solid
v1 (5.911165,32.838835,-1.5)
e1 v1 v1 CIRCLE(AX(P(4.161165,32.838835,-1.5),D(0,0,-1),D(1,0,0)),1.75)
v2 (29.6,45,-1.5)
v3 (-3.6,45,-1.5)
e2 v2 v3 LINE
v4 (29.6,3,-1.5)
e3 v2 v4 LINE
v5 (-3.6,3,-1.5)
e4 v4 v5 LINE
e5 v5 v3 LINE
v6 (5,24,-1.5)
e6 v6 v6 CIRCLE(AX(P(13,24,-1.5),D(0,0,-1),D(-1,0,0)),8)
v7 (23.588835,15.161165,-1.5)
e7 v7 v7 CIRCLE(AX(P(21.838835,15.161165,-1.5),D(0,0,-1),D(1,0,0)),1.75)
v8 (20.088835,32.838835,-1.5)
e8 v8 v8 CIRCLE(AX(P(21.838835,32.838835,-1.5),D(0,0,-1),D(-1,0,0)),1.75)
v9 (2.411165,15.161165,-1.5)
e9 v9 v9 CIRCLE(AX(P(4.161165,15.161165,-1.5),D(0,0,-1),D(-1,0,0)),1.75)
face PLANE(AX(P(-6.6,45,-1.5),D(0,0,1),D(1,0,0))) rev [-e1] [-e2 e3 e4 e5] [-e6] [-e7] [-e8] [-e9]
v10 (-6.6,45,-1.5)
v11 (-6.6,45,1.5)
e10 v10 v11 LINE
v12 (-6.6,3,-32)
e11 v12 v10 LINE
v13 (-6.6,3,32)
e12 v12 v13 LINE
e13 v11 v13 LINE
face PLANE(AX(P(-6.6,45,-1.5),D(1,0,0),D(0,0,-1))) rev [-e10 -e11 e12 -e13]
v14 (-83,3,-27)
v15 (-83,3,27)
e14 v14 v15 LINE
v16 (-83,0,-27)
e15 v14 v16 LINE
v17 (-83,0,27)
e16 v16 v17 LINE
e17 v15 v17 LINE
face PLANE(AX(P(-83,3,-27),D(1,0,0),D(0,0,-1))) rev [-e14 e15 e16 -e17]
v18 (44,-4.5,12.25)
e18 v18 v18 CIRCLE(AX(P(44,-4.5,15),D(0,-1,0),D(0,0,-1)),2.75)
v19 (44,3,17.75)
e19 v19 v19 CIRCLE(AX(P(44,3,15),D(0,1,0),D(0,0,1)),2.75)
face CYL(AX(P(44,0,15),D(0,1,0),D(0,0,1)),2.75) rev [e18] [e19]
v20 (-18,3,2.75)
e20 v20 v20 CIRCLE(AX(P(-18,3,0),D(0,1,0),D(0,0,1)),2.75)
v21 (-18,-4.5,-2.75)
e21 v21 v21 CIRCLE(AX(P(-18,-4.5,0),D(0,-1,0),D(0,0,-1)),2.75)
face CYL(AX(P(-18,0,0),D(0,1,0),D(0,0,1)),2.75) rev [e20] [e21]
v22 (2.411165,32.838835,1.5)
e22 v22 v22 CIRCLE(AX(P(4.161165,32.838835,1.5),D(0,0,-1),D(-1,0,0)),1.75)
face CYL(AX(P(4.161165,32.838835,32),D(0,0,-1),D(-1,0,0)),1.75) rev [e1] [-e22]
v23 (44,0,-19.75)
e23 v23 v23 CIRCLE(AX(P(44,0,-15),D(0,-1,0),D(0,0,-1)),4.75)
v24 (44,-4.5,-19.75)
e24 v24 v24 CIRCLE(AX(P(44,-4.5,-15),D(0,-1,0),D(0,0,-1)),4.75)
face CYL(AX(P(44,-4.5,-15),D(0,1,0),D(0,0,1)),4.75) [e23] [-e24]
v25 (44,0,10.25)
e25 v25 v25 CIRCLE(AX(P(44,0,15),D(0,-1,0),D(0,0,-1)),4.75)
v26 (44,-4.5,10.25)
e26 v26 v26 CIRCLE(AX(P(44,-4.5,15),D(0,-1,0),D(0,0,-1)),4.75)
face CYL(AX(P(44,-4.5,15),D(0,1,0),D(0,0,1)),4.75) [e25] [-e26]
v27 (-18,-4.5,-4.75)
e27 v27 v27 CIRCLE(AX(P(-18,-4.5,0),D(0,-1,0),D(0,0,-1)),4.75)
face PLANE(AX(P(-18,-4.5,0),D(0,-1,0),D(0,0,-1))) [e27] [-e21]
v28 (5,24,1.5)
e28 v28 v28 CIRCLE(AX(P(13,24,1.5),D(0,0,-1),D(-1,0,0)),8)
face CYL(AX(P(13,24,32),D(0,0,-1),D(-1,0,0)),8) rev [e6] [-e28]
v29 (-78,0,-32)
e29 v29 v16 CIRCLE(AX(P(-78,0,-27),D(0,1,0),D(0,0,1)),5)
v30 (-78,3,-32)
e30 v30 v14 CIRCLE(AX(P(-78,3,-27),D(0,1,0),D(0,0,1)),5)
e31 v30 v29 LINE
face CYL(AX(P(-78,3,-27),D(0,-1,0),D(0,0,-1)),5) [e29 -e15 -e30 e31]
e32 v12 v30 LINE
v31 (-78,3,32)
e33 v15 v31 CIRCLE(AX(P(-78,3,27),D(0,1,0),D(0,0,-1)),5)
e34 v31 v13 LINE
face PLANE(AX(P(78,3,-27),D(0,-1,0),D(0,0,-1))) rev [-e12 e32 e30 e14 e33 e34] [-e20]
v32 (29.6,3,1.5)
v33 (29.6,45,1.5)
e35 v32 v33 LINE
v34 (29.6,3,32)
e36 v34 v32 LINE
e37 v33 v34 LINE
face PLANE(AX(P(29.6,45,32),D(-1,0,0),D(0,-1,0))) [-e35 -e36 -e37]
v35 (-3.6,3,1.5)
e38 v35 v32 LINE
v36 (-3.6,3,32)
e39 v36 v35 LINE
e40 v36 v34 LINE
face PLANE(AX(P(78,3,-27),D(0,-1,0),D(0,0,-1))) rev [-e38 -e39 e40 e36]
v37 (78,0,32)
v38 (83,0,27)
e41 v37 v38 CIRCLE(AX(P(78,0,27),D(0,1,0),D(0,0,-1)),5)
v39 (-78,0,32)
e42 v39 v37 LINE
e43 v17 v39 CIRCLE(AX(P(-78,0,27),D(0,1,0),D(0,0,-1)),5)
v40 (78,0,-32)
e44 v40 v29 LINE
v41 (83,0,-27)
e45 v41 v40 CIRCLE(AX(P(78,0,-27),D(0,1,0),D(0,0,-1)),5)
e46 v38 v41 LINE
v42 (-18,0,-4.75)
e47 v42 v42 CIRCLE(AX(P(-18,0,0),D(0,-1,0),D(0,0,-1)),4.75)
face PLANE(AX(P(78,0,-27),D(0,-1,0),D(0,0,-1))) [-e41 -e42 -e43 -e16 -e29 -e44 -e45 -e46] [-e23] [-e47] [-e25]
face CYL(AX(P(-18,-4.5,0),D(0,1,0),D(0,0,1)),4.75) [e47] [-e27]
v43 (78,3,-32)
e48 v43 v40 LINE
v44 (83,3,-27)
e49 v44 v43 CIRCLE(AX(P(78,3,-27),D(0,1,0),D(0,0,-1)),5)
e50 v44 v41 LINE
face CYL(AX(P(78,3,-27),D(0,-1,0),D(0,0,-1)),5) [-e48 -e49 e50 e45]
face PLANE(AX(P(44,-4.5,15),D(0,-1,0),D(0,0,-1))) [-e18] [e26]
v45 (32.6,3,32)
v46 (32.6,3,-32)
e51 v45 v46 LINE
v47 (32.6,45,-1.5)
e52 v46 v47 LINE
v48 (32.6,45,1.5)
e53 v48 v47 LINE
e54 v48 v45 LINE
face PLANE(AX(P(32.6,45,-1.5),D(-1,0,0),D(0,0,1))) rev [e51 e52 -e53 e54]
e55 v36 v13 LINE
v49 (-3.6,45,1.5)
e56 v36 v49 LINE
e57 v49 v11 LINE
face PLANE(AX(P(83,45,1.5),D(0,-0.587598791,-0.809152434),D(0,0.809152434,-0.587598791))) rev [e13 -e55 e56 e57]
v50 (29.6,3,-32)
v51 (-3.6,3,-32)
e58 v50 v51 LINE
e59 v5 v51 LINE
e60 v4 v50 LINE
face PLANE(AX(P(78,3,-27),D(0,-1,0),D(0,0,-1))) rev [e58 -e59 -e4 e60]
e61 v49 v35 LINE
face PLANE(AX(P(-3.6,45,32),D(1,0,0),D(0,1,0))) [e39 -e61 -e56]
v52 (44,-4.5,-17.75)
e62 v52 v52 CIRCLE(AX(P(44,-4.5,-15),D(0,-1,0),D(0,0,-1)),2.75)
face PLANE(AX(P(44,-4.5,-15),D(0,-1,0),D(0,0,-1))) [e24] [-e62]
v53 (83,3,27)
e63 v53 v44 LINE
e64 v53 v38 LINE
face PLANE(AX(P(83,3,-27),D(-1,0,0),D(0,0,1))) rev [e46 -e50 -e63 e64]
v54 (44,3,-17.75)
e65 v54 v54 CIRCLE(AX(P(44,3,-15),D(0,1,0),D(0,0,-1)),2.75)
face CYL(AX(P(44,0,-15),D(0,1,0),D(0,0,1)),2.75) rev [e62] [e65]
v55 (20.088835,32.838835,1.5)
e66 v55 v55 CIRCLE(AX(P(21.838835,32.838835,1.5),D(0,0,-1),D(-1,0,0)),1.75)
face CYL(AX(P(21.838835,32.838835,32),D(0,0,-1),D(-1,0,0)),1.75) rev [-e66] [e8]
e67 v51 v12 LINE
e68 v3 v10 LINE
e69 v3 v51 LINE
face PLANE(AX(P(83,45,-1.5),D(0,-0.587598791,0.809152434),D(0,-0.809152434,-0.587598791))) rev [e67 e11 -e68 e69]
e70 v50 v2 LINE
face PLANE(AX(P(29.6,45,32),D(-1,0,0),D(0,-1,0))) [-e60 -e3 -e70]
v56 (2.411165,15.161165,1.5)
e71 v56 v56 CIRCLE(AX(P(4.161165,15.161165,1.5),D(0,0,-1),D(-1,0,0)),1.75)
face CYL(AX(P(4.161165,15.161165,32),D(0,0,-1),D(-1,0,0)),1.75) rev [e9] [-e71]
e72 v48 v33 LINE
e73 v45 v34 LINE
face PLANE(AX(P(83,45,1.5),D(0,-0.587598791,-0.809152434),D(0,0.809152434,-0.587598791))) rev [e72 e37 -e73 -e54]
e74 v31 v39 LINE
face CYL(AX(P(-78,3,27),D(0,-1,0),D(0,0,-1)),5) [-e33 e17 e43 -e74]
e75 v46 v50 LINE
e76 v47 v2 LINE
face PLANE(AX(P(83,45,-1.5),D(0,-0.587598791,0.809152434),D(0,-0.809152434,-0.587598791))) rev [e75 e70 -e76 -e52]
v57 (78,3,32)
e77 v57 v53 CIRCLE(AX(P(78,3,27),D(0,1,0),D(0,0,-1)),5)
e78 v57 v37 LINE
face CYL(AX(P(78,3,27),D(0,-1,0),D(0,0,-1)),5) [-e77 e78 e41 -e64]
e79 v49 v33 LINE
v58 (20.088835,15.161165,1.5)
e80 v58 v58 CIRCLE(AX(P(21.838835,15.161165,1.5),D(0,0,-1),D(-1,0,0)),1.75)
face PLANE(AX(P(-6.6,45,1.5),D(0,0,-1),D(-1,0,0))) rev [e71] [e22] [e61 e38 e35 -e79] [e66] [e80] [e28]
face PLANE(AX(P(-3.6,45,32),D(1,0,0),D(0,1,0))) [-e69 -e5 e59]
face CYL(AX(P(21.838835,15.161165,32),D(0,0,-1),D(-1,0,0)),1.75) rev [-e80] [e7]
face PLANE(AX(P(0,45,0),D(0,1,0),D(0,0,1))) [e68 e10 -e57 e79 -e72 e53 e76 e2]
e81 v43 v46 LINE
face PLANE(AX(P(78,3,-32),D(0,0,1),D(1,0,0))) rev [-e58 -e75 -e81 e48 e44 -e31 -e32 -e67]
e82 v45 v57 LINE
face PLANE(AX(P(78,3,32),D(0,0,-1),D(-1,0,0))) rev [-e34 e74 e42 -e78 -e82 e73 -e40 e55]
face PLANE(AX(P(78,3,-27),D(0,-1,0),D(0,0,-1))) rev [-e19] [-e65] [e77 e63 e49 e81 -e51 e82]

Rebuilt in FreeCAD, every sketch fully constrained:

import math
import FreeCAD as App
import Part
import Sketcher

doc = App.newDocument("Part")
body = doc.addObject("PartDesign::Body", "Body")

# Sketch on XZ plane
sketch1 = body.newObject("Sketcher::SketchObject", "Sketch")
sketch1.AttachmentSupport = (doc.getObject("XZ_Plane"), [""])
sketch1.MapMode = "FlatFace"
sketch1.addGeometry(Part.LineSegment(App.Vector(78, -32, 0), App.Vector(-78, -32, 0)), False)
sketch1.addGeometry(Part.ArcOfCircle(Part.Circle(App.Vector(-78, -27, 0), App.Vector(0, 0, 1), 5), math.radians(180), math.radians(270)), False)
sketch1.addGeometry(Part.LineSegment(App.Vector(-83, -27, 0), App.Vector(-83, 27, 0)), False)
sketch1.addGeometry(Part.ArcOfCircle(Part.Circle(App.Vector(-78, 27, 0), App.Vector(0, 0, 1), 5), math.radians(90), math.radians(180)), False)
sketch1.addGeometry(Part.LineSegment(App.Vector(-78, 32, 0), App.Vector(78, 32, 0)), False)
sketch1.addGeometry(Part.ArcOfCircle(Part.Circle(App.Vector(78, 27, 0), App.Vector(0, 0, 1), 5), math.radians(0), math.radians(90)), False)
sketch1.addGeometry(Part.LineSegment(App.Vector(83, 27, 0), App.Vector(83, -27, 0)), False)
sketch1.addGeometry(Part.ArcOfCircle(Part.Circle(App.Vector(78, -27, 0), App.Vector(0, 0, 1), 5), math.radians(-90), math.radians(0)), False)
sketch1.addConstraint(Sketcher.Constraint("Tangent", 0, 2, 1, 2))
sketch1.addConstraint(Sketcher.Constraint("Tangent", 1, 1, 2, 1))
sketch1.addConstraint(Sketcher.Constraint("Tangent", 2, 2, 3, 2))
sketch1.addConstraint(Sketcher.Constraint("Tangent", 3, 1, 4, 1))
sketch1.addConstraint(Sketcher.Constraint("Tangent", 4, 2, 5, 2))
sketch1.addConstraint(Sketcher.Constraint("Tangent", 5, 1, 6, 1))
sketch1.addConstraint(Sketcher.Constraint("Tangent", 6, 2, 7, 2))
sketch1.addConstraint(Sketcher.Constraint("Tangent", 7, 1, 0, 1))
sketch1.addConstraint(Sketcher.Constraint("Horizontal", 0))
sketch1.addConstraint(Sketcher.Constraint("Vertical", 2))
sketch1.addConstraint(Sketcher.Constraint("Horizontal", 4))
sketch1.addConstraint(Sketcher.Constraint("Vertical", 6))
sketch1.addConstraint(Sketcher.Constraint("Equal", 1, 3))
sketch1.addConstraint(Sketcher.Constraint("Equal", 3, 5))
sketch1.addConstraint(Sketcher.Constraint("Equal", 5, 7))
sketch1.addConstraint(Sketcher.Constraint("Symmetric", 1, 3, 5, 3, -1, 1))
sketch1.addConstraint(Sketcher.Constraint("Radius", 1, 5.0))
sketch1.addConstraint(Sketcher.Constraint("DistanceX", 0, 2, 0, 1, 156.0))
sketch1.addConstraint(Sketcher.Constraint("DistanceY", 2, 1, 2, 2, 54.0))
pad1 = body.newObject("PartDesign::Pad", "Pad")
pad1.Profile = sketch1
pad1.Length = 3
pad1.Reversed = True

# Sketch on XZ plane
sketch2 = body.newObject("Sketcher::SketchObject", "Sketch001")
sketch2.AttachmentSupport = (doc.getObject("XZ_Plane"), [""])
sketch2.MapMode = "FlatFace"
sketch2.AttachmentOffset = App.Placement(App.Vector(0, 0, -3), App.Rotation())
sketch2.addGeometry(Part.Circle(App.Vector(44, 15, 0), App.Vector(0, 0, 1), 2.8), False)
sketch2.addGeometry(Part.Circle(App.Vector(44, -15, 0), App.Vector(0, 0, 1), 2.8), False)
sketch2.addGeometry(Part.Circle(App.Vector(-18, 0, 0), App.Vector(0, 0, 1), 2.8), False)
sketch2.addConstraint(Sketcher.Constraint("Equal", 0, 1))
sketch2.addConstraint(Sketcher.Constraint("Equal", 1, 2))
sketch2.addConstraint(Sketcher.Constraint("Symmetric", 0, 3, 1, 3, -1))
sketch2.addConstraint(Sketcher.Constraint("PointOnObject", 2, 3, -1))
sketch2.addConstraint(Sketcher.Constraint("Diameter", 0, 5.5))
sketch2.addConstraint(Sketcher.Constraint("DistanceX", -1, 1, 0, 3, 44.0))
sketch2.addConstraint(Sketcher.Constraint("DistanceY", -1, 1, 0, 3, 15.0))
sketch2.addConstraint(Sketcher.Constraint("DistanceX", 2, 3, -1, 1, 18.0))
pocket1 = body.newObject("PartDesign::Pocket", "Pocket")
pocket1.Profile = sketch2
pocket1.Type = "ThroughAll"
pocket1.Reversed = True

# Sketch on XZ plane
sketch3 = body.newObject("Sketcher::SketchObject", "Sketch002")
sketch3.AttachmentSupport = (doc.getObject("XZ_Plane"), [""])
sketch3.MapMode = "FlatFace"
sketch3.AttachmentOffset = App.Placement(App.Vector(0, 0, -3), App.Rotation())
sketch3.addGeometry(Part.LineSegment(App.Vector(-6.6, -1.5, 0), App.Vector(-6.6, 1.5, 0)), False)
sketch3.addGeometry(Part.LineSegment(App.Vector(-6.6, 1.5, 0), App.Vector(32.6, 1.5, 0)), False)
sketch3.addGeometry(Part.LineSegment(App.Vector(32.6, 1.5, 0), App.Vector(32.6, -1.5, 0)), False)
sketch3.addGeometry(Part.LineSegment(App.Vector(32.6, -1.5, 0), App.Vector(-6.6, -1.5, 0)), False)
sketch3.addConstraint(Sketcher.Constraint("Coincident", 0, 2, 1, 1))
sketch3.addConstraint(Sketcher.Constraint("Coincident", 1, 2, 2, 1))
sketch3.addConstraint(Sketcher.Constraint("Coincident", 2, 2, 3, 1))
sketch3.addConstraint(Sketcher.Constraint("Coincident", 3, 2, 0, 1))
sketch3.addConstraint(Sketcher.Constraint("Vertical", 0))
sketch3.addConstraint(Sketcher.Constraint("Horizontal", 1))
sketch3.addConstraint(Sketcher.Constraint("Vertical", 2))
sketch3.addConstraint(Sketcher.Constraint("Horizontal", 3))
sketch3.addConstraint(Sketcher.Constraint("DistanceY", 0, 1, 0, 2, 3.0))
sketch3.addConstraint(Sketcher.Constraint("DistanceX", 1, 1, 1, 2, 39.2))
sketch3.addConstraint(Sketcher.Constraint("DistanceX", 0, 2, -1, 1, 6.6))
sketch3.addConstraint(Sketcher.Constraint("DistanceY", -1, 1, 0, 2, 1.5))
pad2 = body.newObject("PartDesign::Pad", "Pad001")
pad2.Profile = sketch3
pad2.Length = 42
pad2.Reversed = True

# Sketch on XY plane
sketch4 = body.newObject("Sketcher::SketchObject", "Sketch003")
sketch4.AttachmentSupport = (doc.getObject("XY_Plane"), [""])
sketch4.MapMode = "FlatFace"
sketch4.AttachmentOffset = App.Placement(App.Vector(0, 0, -1.5), App.Rotation())
sketch4.addGeometry(Part.Circle(App.Vector(13, 24, 0), App.Vector(0, 0, 1), 8), False)
sketch4.addGeometry(Part.Circle(App.Vector(4.2, 15.2, 0), App.Vector(0, 0, 1), 1.8), False)
sketch4.addGeometry(Part.Circle(App.Vector(21.8, 15.2, 0), App.Vector(0, 0, 1), 1.8), False)
sketch4.addGeometry(Part.Circle(App.Vector(21.8, 32.8, 0), App.Vector(0, 0, 1), 1.8), False)
sketch4.addGeometry(Part.Circle(App.Vector(4.2, 32.8, 0), App.Vector(0, 0, 1), 1.8), False)
sketch4.addConstraint(Sketcher.Constraint("Equal", 1, 2))
sketch4.addConstraint(Sketcher.Constraint("Equal", 2, 3))
sketch4.addConstraint(Sketcher.Constraint("Equal", 3, 4))
sketch4.addConstraint(Sketcher.Constraint("Horizontal", 1, 3, 2, 3))
sketch4.addConstraint(Sketcher.Constraint("Horizontal", 3, 3, 4, 3))
sketch4.addConstraint(Sketcher.Constraint("Vertical", 2, 3, 3, 3))
sketch4.addConstraint(Sketcher.Constraint("Vertical", 1, 3, 4, 3))
sketch4.addConstraint(Sketcher.Constraint("Diameter", 0, 16.0))
sketch4.addConstraint(Sketcher.Constraint("Diameter", 1, 3.5))
sketch4.addConstraint(Sketcher.Constraint("DistanceX", -1, 1, 0, 3, 13.0))
sketch4.addConstraint(Sketcher.Constraint("DistanceY", -1, 1, 0, 3, 24.0))
sketch4.addConstraint(Sketcher.Constraint("DistanceX", 1, 3, 2, 3, 17.67767))
sketch4.addConstraint(Sketcher.Constraint("DistanceY", 2, 3, 3, 3, 17.67767))
sketch4.addConstraint(Sketcher.Constraint("DistanceX", -1, 1, 1, 3, 4.161165))
sketch4.addConstraint(Sketcher.Constraint("DistanceY", -1, 1, 1, 3, 15.161165))
pocket2 = body.newObject("PartDesign::Pocket", "Pocket001")
pocket2.Profile = sketch4
pocket2.Type = "ThroughAll"
pocket2.Midplane = True

# Sketch on XY plane
sketch5 = body.newObject("Sketcher::SketchObject", "Sketch004")
sketch5.AttachmentSupport = (doc.getObject("XY_Plane"), [""])
sketch5.MapMode = "FlatFace"
sketch5.AttachmentOffset = App.Placement(App.Vector(0, 0, -1.5), App.Rotation())
sketch5.addGeometry(Part.LineSegment(App.Vector(32.6, 45, 0), App.Vector(32.6, 3, 0)), False)
sketch5.addGeometry(Part.LineSegment(App.Vector(32.6, 3, 0), App.Vector(29.6, 3, 0)), False)
sketch5.addGeometry(Part.LineSegment(App.Vector(29.6, 3, 0), App.Vector(29.6, 45, 0)), False)
sketch5.addGeometry(Part.LineSegment(App.Vector(29.6, 45, 0), App.Vector(32.6, 45, 0)), False)
sketch5.addGeometry(Part.LineSegment(App.Vector(-3.6, 45, 0), App.Vector(-3.6, 3, 0)), False)
sketch5.addGeometry(Part.LineSegment(App.Vector(-3.6, 3, 0), App.Vector(-6.6, 3, 0)), False)
sketch5.addGeometry(Part.LineSegment(App.Vector(-6.6, 3, 0), App.Vector(-6.6, 45, 0)), False)
sketch5.addGeometry(Part.LineSegment(App.Vector(-6.6, 45, 0), App.Vector(-3.6, 45, 0)), False)
sketch5.addConstraint(Sketcher.Constraint("Coincident", 0, 2, 1, 1))
sketch5.addConstraint(Sketcher.Constraint("Coincident", 1, 2, 2, 1))
sketch5.addConstraint(Sketcher.Constraint("Coincident", 2, 2, 3, 1))
sketch5.addConstraint(Sketcher.Constraint("Coincident", 3, 2, 0, 1))
sketch5.addConstraint(Sketcher.Constraint("Coincident", 4, 2, 5, 1))
sketch5.addConstraint(Sketcher.Constraint("Coincident", 5, 2, 6, 1))
sketch5.addConstraint(Sketcher.Constraint("Coincident", 6, 2, 7, 1))
sketch5.addConstraint(Sketcher.Constraint("Coincident", 7, 2, 4, 1))
sketch5.addConstraint(Sketcher.Constraint("Vertical", 0))
sketch5.addConstraint(Sketcher.Constraint("Horizontal", 1))
sketch5.addConstraint(Sketcher.Constraint("Vertical", 2))
sketch5.addConstraint(Sketcher.Constraint("Horizontal", 3))
sketch5.addConstraint(Sketcher.Constraint("Vertical", 4))
sketch5.addConstraint(Sketcher.Constraint("Horizontal", 5))
sketch5.addConstraint(Sketcher.Constraint("Vertical", 6))
sketch5.addConstraint(Sketcher.Constraint("Horizontal", 7))
sketch5.addConstraint(Sketcher.Constraint("Horizontal", 1, 2, 4, 2))
sketch5.addConstraint(Sketcher.Constraint("Horizontal", 3, 2, 6, 2))
sketch5.addConstraint(Sketcher.Constraint("Equal", 3, 5))
sketch5.addConstraint(Sketcher.Constraint("DistanceX", 1, 2, 1, 1, 3.0))
sketch5.addConstraint(Sketcher.Constraint("DistanceY", 0, 2, 0, 1, 42.0))
sketch5.addConstraint(Sketcher.Constraint("DistanceY", -1, 1, 0, 2, 3.0))
sketch5.addConstraint(Sketcher.Constraint("DistanceX", -1, 1, 0, 2, 32.6))
sketch5.addConstraint(Sketcher.Constraint("DistanceX", 4, 2, -1, 1, 3.6))
pad3 = body.newObject("PartDesign::Pad", "Pad002")
pad3.Profile = sketch5
pad3.Type = "TwoLengths"
pad3.Length = 30.5
pad3.Length2 = 33.5
pad3.Reversed = True

# Sketch on YZ plane
sketch6 = body.newObject("Sketcher::SketchObject", "Sketch005")
sketch6.AttachmentSupport = (doc.getObject("YZ_Plane"), [""])
sketch6.MapMode = "FlatFace"
sketch6.AttachmentOffset = App.Placement(App.Vector(0, 0, -6.6), App.Rotation())
sketch6.addGeometry(Part.LineSegment(App.Vector(3, -32, 0), App.Vector(45, -2, 0)), False)
sketch6.addGeometry(Part.LineSegment(App.Vector(45, -2, 0), App.Vector(45, -32, 0)), False)
sketch6.addGeometry(Part.LineSegment(App.Vector(45, -32, 0), App.Vector(3, -32, 0)), False)
sketch6.addGeometry(Part.LineSegment(App.Vector(45, 2, 0), App.Vector(3, 32, 0)), False)
sketch6.addGeometry(Part.LineSegment(App.Vector(3, 32, 0), App.Vector(45, 32, 0)), False)
sketch6.addGeometry(Part.LineSegment(App.Vector(45, 32, 0), App.Vector(45, 2, 0)), False)
sketch6.addConstraint(Sketcher.Constraint("Coincident", 0, 2, 1, 1))
sketch6.addConstraint(Sketcher.Constraint("Coincident", 1, 2, 2, 1))
sketch6.addConstraint(Sketcher.Constraint("Coincident", 2, 2, 0, 1))
sketch6.addConstraint(Sketcher.Constraint("Coincident", 3, 2, 4, 1))
sketch6.addConstraint(Sketcher.Constraint("Coincident", 4, 2, 5, 1))
sketch6.addConstraint(Sketcher.Constraint("Coincident", 5, 2, 3, 1))
sketch6.addConstraint(Sketcher.Constraint("Vertical", 1))
sketch6.addConstraint(Sketcher.Constraint("Horizontal", 2))
sketch6.addConstraint(Sketcher.Constraint("Horizontal", 4))
sketch6.addConstraint(Sketcher.Constraint("Vertical", 5))
sketch6.addConstraint(Sketcher.Constraint("Symmetric", 2, 2, 3, 2, -1))
sketch6.addConstraint(Sketcher.Constraint("Symmetric", 0, 2, 5, 2, -1))
sketch6.addConstraint(Sketcher.Constraint("DistanceX", 2, 2, 2, 1, 42.0))
sketch6.addConstraint(Sketcher.Constraint("DistanceY", 1, 2, 1, 1, 30.5))
sketch6.addConstraint(Sketcher.Constraint("DistanceX", -1, 1, 0, 2, 45.0))
sketch6.addConstraint(Sketcher.Constraint("DistanceY", 1, 2, -1, 1, 32.0))
pocket3 = body.newObject("PartDesign::Pocket", "Pocket002")
pocket3.Profile = sketch6
pocket3.Type = "ThroughAll"
pocket3.Midplane = True

# Sketch on XZ plane
sketch7 = body.newObject("Sketcher::SketchObject", "Sketch006")
sketch7.AttachmentSupport = (doc.getObject("XZ_Plane"), [""])
sketch7.MapMode = "FlatFace"
sketch7.addGeometry(Part.Circle(App.Vector(-18, 0, 0), App.Vector(0, 0, 1), 4.8), False)
sketch7.addGeometry(Part.Circle(App.Vector(-18, 0, 0), App.Vector(0, 0, 1), 2.8), False)
sketch7.addGeometry(Part.Circle(App.Vector(44, -15, 0), App.Vector(0, 0, 1), 4.8), False)
sketch7.addGeometry(Part.Circle(App.Vector(44, -15, 0), App.Vector(0, 0, 1), 2.8), False)
sketch7.addGeometry(Part.Circle(App.Vector(44, 15, 0), App.Vector(0, 0, 1), 4.8), False)
sketch7.addGeometry(Part.Circle(App.Vector(44, 15, 0), App.Vector(0, 0, 1), 2.8), False)
sketch7.addConstraint(Sketcher.Constraint("Coincident", 1, 3, 0, 3))
sketch7.addConstraint(Sketcher.Constraint("Coincident", 3, 3, 2, 3))
sketch7.addConstraint(Sketcher.Constraint("Coincident", 5, 3, 4, 3))
sketch7.addConstraint(Sketcher.Constraint("Equal", 0, 2))
sketch7.addConstraint(Sketcher.Constraint("Equal", 1, 3))
sketch7.addConstraint(Sketcher.Constraint("Equal", 2, 4))
sketch7.addConstraint(Sketcher.Constraint("Equal", 3, 5))
sketch7.addConstraint(Sketcher.Constraint("Symmetric", 2, 3, 4, 3, -1))
sketch7.addConstraint(Sketcher.Constraint("PointOnObject", 0, 3, -1))
sketch7.addConstraint(Sketcher.Constraint("Diameter", 0, 9.5))
sketch7.addConstraint(Sketcher.Constraint("Diameter", 1, 5.5))
sketch7.addConstraint(Sketcher.Constraint("DistanceX", 0, 3, -1, 1, 18.0))
sketch7.addConstraint(Sketcher.Constraint("DistanceX", -1, 1, 2, 3, 44.0))
sketch7.addConstraint(Sketcher.Constraint("DistanceY", 2, 3, -1, 1, 15.0))
pad4 = body.newObject("PartDesign::Pad", "Pad003")
pad4.Profile = sketch7
pad4.Length = 4.5

doc.recompute()
